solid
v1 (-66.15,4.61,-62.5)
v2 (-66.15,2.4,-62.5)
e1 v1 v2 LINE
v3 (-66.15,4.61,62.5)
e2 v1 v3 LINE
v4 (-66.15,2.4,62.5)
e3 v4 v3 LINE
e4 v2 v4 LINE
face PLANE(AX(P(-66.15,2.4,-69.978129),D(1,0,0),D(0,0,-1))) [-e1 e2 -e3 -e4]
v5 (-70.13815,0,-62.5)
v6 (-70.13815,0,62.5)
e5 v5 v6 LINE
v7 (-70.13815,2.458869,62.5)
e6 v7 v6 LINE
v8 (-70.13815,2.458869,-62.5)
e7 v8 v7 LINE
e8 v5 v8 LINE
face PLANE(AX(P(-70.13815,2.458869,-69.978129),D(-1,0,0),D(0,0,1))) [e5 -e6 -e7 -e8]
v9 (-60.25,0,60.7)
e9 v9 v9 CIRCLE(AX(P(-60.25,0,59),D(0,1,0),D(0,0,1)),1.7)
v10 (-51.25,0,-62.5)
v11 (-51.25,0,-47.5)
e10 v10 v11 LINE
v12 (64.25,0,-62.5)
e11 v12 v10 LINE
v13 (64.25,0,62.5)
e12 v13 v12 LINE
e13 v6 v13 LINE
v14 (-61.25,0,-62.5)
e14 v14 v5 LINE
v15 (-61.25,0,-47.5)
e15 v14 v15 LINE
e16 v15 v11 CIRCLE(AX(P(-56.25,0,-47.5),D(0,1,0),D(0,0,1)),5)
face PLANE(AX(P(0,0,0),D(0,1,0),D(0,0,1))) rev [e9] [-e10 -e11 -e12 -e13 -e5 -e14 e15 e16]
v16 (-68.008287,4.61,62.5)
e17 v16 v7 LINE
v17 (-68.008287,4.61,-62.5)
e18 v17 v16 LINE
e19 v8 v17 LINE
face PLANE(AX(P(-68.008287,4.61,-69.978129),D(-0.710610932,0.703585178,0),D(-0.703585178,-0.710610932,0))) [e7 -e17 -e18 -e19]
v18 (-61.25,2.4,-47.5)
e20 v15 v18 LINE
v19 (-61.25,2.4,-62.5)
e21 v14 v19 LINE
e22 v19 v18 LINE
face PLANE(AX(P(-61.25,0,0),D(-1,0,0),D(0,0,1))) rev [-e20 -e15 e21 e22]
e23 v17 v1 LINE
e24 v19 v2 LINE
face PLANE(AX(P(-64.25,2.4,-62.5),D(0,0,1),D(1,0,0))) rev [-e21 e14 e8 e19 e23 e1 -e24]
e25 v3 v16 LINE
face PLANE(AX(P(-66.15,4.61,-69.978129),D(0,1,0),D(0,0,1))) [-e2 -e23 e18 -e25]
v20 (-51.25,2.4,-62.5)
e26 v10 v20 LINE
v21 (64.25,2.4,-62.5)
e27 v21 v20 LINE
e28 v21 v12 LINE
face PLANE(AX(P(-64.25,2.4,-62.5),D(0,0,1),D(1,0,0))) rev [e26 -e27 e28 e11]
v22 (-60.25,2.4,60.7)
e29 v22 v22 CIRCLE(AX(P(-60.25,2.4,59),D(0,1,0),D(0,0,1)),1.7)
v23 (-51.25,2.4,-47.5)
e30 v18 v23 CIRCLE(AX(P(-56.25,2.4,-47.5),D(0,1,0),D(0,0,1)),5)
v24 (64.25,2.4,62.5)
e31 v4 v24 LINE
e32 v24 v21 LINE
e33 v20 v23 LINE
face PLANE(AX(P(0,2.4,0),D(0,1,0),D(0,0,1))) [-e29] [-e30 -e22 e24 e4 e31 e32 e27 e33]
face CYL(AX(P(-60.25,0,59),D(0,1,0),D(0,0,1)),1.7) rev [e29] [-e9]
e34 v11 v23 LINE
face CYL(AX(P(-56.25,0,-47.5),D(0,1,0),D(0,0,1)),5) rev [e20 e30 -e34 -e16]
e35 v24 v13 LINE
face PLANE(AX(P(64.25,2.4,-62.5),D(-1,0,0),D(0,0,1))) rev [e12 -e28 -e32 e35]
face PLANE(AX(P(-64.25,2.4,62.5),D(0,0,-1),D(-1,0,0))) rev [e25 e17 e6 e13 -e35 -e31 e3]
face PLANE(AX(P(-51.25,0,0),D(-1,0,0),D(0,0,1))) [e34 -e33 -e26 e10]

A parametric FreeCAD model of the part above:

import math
import FreeCAD as App
import Part
import Sketcher

doc = App.newDocument("Part")
body = doc.addObject("PartDesign::Body", "Body")

# Sketch on XZ plane
sketch1 = body.newObject("Sketcher::SketchObject", "Sketch")
sketch1.AttachmentSupport = (doc.getObject("XZ_Plane"), [""])
sketch1.MapMode = "FlatFace"
sketch1.addGeometry([
    Part.LineSegment(App.Vector(-64, -62, 0), App.Vector(-64, 62, 0)),
    Part.LineSegment(App.Vector(-64, 62, 0), App.Vector(64, 62, 0)),
    Part.LineSegment(App.Vector(64, 62, 0), App.Vector(64, -62, 0)),
    Part.LineSegment(App.Vector(64, -62, 0), App.Vector(-64, -62, 0)),
], False)
sketch1.addConstraint([
    Sketcher.Constraint("Coincident", 0, 2, 1, 1),
    Sketcher.Constraint("Coincident", 1, 2, 2, 1),
    Sketcher.Constraint("Coincident", 2, 2, 3, 1),
    Sketcher.Constraint("Coincident", 3, 2, 0, 1),
    Sketcher.Constraint("Vertical", 0),
    Sketcher.Constraint("Horizontal", 1),
    Sketcher.Constraint("Vertical", 2),
    Sketcher.Constraint("Horizontal", 3),
    Sketcher.Constraint("Symmetric", 0, 2, 2, 2, -1, 1),
    Sketcher.Constraint("DistanceY", 0, 1, 0, 2, 125.0),
    Sketcher.Constraint("DistanceX", 1, 1, 1, 2, 128.5),
])
pad1 = body.newObject("PartDesign::Pad", "Pad")
pad1.Profile = sketch1
pad1.Length = 2.4
pad1.Reversed = True

# Sketch on XY plane
sketch2 = body.newObject("Sketcher::SketchObject", "Sketch001")
sketch2.AttachmentSupport = (doc.getObject("XY_Plane"), [""])
sketch2.MapMode = "FlatFace"
sketch2.AttachmentOffset = App.Placement(App.Vector(0, 0, 62.5), App.Rotation())
sketch2.addGeometry([
    Part.LineSegment(App.Vector(-64.2, 2.4, 0), App.Vector(-66.2, 2.4, 0)),  # 0
    Part.LineSegment(App.Vector(-66.2, 2.4, 0), App.Vector(-66.2, 4.6, 0)),  # 1
    Part.LineSegment(App.Vector(-66.2, 4.6, 0), App.Vector(-68, 4.6, 0)),  # 2
    Part.LineSegment(App.Vector(-68, 4.6, 0), App.Vector(-70.1, 2.5, 0)),  # 3
    Part.LineSegment(App.Vector(-70.1, 2.5, 0), App.Vector(-70.1, 0, 0)),  # 4
    Part.LineSegment(App.Vector(-70.1, 0, 0), App.Vector(-64.2, 0, 0)),  # 5
    Part.LineSegment(App.Vector(-64.2, 0, 0), App.Vector(-64.2, 2.4, 0)),  # 6
], False)
sketch2.addConstraint([
    Sketcher.Constraint("Coincident", 0, 2, 1, 1),
    Sketcher.Constraint("Coincident", 1, 2, 2, 1),
    Sketcher.Constraint("Coincident", 2, 2, 3, 1),
    Sketcher.Constraint("Coincident", 3, 2, 4, 1),
    Sketcher.Constraint("Coincident", 4, 2, 5, 1),
    Sketcher.Constraint("Coincident", 5, 2, 6, 1),
    Sketcher.Constraint("Coincident", 6, 2, 0, 1),
    Sketcher.Constraint("Horizontal", 0),
    Sketcher.Constraint("Vertical", 1),
    Sketcher.Constraint("Horizontal", 2),
    Sketcher.Constraint("Vertical", 4),
    Sketcher.Constraint("Horizontal", 5),
    Sketcher.Constraint("Vertical", 6),
    Sketcher.Constraint("PointOnObject", 4, 2, -1),
    Sketcher.Constraint("DistanceX", 0, 2, 0, 1, 1.9),
    Sketcher.Constraint("DistanceY", 6, 1, 6, 2, 2.4),
    Sketcher.Constraint("DistanceY", 1, 1, 1, 2, 2.21),
    Sketcher.Constraint("DistanceX", 0, 2, -1, 1, 66.15),
    Sketcher.Constraint("DistanceX", 5, 1, 5, 2, 5.88815),
    Sketcher.Constraint("DistanceY", 4, 2, 4, 1, 2.458869),
    Sketcher.Constraint("DistanceX", 2, 2, 2, 1, 1.858287),
])
pad2 = body.newObject("PartDesign::Pad", "Pad001")
pad2.Profile = sketch2
pad2.Length = 125
pad2.Reversed = True

# Sketch on XZ plane
sketch3 = body.newObject("Sketcher::SketchObject", "Sketch002")
sketch3.AttachmentSupport = (doc.getObject("XZ_Plane"), [""])
sketch3.MapMode = "FlatFace"
sketch3.AttachmentOffset = App.Placement(App.Vector(0, 0, -2.4), App.Rotation())
sketch3.addGeometry([
    Part.LineSegment(App.Vector(-51, -48, 0), App.Vector(-51, -62, 0)),
    Part.ArcOfCircle(Part.Circle(App.Vector(-56, -62, 0), App.Vector(0, 0, 1), 5), math.radians(180), math.radians(360)),
    Part.LineSegment(App.Vector(-61, -62, 0), App.Vector(-61, -48, 0)),
    Part.ArcOfCircle(Part.Circle(App.Vector(-56, -48, 0), App.Vector(0, 0, 1), 5), math.radians(0), math.radians(180)),
], False)
sketch3.addConstraint([
    Sketcher.Constraint("Tangent", 0, 2, 1, 2),
    Sketcher.Constraint("Tangent", 1, 1, 2, 1),
    Sketcher.Constraint("Tangent", 2, 2, 3, 2),
    Sketcher.Constraint("Tangent", 3, 1, 0, 1),
    Sketcher.Constraint("Vertical", 0),
    Sketcher.Constraint("Vertical", 2),
    Sketcher.Constraint("Radius", 1, 5.0),
    Sketcher.Constraint("DistanceY", 0, 2, 0, 1, 15.0),
    Sketcher.Constraint("DistanceY", 1, 3, -1, 1, 62.5),
    Sketcher.Constraint("DistanceX", 1, 3, -1, 1, 56.25),
])
pocket1 = body.newObject("PartDesign::Pocket", "Pocket")
pocket1.Profile = sketch3
pocket1.Type = "ThroughAll"
pocket1.Reversed = True

# Sketch on XZ plane
sketch4 = body.newObject("Sketcher::SketchObject", "Sketch003")
sketch4.AttachmentSupport = (doc.getObject("XZ_Plane"), [""])
sketch4.MapMode = "FlatFace"
sketch4.AttachmentOffset = App.Placement(App.Vector(0, 0, -2.4), App.Rotation())
sketch4.addGeometry(Part.Circle(App.Vector(-60.2, 59, 0), App.Vector(0, 0, 1), 1.7), False)
sketch4.addConstraint([
    Sketcher.Constraint("Diameter", 0, 3.4),
    Sketcher.Constraint("DistanceY", -1, 1, 0, 3, 59.0),
    Sketcher.Constraint("DistanceX", 0, 3, -1, 1, 60.25),
])
pocket2 = body.newObject("PartDesign::Pocket", "Pocket001")
pocket2.Profile = sketch4
pocket2.Type = "ThroughAll"
pocket2.Reversed = True

doc.recompute()
